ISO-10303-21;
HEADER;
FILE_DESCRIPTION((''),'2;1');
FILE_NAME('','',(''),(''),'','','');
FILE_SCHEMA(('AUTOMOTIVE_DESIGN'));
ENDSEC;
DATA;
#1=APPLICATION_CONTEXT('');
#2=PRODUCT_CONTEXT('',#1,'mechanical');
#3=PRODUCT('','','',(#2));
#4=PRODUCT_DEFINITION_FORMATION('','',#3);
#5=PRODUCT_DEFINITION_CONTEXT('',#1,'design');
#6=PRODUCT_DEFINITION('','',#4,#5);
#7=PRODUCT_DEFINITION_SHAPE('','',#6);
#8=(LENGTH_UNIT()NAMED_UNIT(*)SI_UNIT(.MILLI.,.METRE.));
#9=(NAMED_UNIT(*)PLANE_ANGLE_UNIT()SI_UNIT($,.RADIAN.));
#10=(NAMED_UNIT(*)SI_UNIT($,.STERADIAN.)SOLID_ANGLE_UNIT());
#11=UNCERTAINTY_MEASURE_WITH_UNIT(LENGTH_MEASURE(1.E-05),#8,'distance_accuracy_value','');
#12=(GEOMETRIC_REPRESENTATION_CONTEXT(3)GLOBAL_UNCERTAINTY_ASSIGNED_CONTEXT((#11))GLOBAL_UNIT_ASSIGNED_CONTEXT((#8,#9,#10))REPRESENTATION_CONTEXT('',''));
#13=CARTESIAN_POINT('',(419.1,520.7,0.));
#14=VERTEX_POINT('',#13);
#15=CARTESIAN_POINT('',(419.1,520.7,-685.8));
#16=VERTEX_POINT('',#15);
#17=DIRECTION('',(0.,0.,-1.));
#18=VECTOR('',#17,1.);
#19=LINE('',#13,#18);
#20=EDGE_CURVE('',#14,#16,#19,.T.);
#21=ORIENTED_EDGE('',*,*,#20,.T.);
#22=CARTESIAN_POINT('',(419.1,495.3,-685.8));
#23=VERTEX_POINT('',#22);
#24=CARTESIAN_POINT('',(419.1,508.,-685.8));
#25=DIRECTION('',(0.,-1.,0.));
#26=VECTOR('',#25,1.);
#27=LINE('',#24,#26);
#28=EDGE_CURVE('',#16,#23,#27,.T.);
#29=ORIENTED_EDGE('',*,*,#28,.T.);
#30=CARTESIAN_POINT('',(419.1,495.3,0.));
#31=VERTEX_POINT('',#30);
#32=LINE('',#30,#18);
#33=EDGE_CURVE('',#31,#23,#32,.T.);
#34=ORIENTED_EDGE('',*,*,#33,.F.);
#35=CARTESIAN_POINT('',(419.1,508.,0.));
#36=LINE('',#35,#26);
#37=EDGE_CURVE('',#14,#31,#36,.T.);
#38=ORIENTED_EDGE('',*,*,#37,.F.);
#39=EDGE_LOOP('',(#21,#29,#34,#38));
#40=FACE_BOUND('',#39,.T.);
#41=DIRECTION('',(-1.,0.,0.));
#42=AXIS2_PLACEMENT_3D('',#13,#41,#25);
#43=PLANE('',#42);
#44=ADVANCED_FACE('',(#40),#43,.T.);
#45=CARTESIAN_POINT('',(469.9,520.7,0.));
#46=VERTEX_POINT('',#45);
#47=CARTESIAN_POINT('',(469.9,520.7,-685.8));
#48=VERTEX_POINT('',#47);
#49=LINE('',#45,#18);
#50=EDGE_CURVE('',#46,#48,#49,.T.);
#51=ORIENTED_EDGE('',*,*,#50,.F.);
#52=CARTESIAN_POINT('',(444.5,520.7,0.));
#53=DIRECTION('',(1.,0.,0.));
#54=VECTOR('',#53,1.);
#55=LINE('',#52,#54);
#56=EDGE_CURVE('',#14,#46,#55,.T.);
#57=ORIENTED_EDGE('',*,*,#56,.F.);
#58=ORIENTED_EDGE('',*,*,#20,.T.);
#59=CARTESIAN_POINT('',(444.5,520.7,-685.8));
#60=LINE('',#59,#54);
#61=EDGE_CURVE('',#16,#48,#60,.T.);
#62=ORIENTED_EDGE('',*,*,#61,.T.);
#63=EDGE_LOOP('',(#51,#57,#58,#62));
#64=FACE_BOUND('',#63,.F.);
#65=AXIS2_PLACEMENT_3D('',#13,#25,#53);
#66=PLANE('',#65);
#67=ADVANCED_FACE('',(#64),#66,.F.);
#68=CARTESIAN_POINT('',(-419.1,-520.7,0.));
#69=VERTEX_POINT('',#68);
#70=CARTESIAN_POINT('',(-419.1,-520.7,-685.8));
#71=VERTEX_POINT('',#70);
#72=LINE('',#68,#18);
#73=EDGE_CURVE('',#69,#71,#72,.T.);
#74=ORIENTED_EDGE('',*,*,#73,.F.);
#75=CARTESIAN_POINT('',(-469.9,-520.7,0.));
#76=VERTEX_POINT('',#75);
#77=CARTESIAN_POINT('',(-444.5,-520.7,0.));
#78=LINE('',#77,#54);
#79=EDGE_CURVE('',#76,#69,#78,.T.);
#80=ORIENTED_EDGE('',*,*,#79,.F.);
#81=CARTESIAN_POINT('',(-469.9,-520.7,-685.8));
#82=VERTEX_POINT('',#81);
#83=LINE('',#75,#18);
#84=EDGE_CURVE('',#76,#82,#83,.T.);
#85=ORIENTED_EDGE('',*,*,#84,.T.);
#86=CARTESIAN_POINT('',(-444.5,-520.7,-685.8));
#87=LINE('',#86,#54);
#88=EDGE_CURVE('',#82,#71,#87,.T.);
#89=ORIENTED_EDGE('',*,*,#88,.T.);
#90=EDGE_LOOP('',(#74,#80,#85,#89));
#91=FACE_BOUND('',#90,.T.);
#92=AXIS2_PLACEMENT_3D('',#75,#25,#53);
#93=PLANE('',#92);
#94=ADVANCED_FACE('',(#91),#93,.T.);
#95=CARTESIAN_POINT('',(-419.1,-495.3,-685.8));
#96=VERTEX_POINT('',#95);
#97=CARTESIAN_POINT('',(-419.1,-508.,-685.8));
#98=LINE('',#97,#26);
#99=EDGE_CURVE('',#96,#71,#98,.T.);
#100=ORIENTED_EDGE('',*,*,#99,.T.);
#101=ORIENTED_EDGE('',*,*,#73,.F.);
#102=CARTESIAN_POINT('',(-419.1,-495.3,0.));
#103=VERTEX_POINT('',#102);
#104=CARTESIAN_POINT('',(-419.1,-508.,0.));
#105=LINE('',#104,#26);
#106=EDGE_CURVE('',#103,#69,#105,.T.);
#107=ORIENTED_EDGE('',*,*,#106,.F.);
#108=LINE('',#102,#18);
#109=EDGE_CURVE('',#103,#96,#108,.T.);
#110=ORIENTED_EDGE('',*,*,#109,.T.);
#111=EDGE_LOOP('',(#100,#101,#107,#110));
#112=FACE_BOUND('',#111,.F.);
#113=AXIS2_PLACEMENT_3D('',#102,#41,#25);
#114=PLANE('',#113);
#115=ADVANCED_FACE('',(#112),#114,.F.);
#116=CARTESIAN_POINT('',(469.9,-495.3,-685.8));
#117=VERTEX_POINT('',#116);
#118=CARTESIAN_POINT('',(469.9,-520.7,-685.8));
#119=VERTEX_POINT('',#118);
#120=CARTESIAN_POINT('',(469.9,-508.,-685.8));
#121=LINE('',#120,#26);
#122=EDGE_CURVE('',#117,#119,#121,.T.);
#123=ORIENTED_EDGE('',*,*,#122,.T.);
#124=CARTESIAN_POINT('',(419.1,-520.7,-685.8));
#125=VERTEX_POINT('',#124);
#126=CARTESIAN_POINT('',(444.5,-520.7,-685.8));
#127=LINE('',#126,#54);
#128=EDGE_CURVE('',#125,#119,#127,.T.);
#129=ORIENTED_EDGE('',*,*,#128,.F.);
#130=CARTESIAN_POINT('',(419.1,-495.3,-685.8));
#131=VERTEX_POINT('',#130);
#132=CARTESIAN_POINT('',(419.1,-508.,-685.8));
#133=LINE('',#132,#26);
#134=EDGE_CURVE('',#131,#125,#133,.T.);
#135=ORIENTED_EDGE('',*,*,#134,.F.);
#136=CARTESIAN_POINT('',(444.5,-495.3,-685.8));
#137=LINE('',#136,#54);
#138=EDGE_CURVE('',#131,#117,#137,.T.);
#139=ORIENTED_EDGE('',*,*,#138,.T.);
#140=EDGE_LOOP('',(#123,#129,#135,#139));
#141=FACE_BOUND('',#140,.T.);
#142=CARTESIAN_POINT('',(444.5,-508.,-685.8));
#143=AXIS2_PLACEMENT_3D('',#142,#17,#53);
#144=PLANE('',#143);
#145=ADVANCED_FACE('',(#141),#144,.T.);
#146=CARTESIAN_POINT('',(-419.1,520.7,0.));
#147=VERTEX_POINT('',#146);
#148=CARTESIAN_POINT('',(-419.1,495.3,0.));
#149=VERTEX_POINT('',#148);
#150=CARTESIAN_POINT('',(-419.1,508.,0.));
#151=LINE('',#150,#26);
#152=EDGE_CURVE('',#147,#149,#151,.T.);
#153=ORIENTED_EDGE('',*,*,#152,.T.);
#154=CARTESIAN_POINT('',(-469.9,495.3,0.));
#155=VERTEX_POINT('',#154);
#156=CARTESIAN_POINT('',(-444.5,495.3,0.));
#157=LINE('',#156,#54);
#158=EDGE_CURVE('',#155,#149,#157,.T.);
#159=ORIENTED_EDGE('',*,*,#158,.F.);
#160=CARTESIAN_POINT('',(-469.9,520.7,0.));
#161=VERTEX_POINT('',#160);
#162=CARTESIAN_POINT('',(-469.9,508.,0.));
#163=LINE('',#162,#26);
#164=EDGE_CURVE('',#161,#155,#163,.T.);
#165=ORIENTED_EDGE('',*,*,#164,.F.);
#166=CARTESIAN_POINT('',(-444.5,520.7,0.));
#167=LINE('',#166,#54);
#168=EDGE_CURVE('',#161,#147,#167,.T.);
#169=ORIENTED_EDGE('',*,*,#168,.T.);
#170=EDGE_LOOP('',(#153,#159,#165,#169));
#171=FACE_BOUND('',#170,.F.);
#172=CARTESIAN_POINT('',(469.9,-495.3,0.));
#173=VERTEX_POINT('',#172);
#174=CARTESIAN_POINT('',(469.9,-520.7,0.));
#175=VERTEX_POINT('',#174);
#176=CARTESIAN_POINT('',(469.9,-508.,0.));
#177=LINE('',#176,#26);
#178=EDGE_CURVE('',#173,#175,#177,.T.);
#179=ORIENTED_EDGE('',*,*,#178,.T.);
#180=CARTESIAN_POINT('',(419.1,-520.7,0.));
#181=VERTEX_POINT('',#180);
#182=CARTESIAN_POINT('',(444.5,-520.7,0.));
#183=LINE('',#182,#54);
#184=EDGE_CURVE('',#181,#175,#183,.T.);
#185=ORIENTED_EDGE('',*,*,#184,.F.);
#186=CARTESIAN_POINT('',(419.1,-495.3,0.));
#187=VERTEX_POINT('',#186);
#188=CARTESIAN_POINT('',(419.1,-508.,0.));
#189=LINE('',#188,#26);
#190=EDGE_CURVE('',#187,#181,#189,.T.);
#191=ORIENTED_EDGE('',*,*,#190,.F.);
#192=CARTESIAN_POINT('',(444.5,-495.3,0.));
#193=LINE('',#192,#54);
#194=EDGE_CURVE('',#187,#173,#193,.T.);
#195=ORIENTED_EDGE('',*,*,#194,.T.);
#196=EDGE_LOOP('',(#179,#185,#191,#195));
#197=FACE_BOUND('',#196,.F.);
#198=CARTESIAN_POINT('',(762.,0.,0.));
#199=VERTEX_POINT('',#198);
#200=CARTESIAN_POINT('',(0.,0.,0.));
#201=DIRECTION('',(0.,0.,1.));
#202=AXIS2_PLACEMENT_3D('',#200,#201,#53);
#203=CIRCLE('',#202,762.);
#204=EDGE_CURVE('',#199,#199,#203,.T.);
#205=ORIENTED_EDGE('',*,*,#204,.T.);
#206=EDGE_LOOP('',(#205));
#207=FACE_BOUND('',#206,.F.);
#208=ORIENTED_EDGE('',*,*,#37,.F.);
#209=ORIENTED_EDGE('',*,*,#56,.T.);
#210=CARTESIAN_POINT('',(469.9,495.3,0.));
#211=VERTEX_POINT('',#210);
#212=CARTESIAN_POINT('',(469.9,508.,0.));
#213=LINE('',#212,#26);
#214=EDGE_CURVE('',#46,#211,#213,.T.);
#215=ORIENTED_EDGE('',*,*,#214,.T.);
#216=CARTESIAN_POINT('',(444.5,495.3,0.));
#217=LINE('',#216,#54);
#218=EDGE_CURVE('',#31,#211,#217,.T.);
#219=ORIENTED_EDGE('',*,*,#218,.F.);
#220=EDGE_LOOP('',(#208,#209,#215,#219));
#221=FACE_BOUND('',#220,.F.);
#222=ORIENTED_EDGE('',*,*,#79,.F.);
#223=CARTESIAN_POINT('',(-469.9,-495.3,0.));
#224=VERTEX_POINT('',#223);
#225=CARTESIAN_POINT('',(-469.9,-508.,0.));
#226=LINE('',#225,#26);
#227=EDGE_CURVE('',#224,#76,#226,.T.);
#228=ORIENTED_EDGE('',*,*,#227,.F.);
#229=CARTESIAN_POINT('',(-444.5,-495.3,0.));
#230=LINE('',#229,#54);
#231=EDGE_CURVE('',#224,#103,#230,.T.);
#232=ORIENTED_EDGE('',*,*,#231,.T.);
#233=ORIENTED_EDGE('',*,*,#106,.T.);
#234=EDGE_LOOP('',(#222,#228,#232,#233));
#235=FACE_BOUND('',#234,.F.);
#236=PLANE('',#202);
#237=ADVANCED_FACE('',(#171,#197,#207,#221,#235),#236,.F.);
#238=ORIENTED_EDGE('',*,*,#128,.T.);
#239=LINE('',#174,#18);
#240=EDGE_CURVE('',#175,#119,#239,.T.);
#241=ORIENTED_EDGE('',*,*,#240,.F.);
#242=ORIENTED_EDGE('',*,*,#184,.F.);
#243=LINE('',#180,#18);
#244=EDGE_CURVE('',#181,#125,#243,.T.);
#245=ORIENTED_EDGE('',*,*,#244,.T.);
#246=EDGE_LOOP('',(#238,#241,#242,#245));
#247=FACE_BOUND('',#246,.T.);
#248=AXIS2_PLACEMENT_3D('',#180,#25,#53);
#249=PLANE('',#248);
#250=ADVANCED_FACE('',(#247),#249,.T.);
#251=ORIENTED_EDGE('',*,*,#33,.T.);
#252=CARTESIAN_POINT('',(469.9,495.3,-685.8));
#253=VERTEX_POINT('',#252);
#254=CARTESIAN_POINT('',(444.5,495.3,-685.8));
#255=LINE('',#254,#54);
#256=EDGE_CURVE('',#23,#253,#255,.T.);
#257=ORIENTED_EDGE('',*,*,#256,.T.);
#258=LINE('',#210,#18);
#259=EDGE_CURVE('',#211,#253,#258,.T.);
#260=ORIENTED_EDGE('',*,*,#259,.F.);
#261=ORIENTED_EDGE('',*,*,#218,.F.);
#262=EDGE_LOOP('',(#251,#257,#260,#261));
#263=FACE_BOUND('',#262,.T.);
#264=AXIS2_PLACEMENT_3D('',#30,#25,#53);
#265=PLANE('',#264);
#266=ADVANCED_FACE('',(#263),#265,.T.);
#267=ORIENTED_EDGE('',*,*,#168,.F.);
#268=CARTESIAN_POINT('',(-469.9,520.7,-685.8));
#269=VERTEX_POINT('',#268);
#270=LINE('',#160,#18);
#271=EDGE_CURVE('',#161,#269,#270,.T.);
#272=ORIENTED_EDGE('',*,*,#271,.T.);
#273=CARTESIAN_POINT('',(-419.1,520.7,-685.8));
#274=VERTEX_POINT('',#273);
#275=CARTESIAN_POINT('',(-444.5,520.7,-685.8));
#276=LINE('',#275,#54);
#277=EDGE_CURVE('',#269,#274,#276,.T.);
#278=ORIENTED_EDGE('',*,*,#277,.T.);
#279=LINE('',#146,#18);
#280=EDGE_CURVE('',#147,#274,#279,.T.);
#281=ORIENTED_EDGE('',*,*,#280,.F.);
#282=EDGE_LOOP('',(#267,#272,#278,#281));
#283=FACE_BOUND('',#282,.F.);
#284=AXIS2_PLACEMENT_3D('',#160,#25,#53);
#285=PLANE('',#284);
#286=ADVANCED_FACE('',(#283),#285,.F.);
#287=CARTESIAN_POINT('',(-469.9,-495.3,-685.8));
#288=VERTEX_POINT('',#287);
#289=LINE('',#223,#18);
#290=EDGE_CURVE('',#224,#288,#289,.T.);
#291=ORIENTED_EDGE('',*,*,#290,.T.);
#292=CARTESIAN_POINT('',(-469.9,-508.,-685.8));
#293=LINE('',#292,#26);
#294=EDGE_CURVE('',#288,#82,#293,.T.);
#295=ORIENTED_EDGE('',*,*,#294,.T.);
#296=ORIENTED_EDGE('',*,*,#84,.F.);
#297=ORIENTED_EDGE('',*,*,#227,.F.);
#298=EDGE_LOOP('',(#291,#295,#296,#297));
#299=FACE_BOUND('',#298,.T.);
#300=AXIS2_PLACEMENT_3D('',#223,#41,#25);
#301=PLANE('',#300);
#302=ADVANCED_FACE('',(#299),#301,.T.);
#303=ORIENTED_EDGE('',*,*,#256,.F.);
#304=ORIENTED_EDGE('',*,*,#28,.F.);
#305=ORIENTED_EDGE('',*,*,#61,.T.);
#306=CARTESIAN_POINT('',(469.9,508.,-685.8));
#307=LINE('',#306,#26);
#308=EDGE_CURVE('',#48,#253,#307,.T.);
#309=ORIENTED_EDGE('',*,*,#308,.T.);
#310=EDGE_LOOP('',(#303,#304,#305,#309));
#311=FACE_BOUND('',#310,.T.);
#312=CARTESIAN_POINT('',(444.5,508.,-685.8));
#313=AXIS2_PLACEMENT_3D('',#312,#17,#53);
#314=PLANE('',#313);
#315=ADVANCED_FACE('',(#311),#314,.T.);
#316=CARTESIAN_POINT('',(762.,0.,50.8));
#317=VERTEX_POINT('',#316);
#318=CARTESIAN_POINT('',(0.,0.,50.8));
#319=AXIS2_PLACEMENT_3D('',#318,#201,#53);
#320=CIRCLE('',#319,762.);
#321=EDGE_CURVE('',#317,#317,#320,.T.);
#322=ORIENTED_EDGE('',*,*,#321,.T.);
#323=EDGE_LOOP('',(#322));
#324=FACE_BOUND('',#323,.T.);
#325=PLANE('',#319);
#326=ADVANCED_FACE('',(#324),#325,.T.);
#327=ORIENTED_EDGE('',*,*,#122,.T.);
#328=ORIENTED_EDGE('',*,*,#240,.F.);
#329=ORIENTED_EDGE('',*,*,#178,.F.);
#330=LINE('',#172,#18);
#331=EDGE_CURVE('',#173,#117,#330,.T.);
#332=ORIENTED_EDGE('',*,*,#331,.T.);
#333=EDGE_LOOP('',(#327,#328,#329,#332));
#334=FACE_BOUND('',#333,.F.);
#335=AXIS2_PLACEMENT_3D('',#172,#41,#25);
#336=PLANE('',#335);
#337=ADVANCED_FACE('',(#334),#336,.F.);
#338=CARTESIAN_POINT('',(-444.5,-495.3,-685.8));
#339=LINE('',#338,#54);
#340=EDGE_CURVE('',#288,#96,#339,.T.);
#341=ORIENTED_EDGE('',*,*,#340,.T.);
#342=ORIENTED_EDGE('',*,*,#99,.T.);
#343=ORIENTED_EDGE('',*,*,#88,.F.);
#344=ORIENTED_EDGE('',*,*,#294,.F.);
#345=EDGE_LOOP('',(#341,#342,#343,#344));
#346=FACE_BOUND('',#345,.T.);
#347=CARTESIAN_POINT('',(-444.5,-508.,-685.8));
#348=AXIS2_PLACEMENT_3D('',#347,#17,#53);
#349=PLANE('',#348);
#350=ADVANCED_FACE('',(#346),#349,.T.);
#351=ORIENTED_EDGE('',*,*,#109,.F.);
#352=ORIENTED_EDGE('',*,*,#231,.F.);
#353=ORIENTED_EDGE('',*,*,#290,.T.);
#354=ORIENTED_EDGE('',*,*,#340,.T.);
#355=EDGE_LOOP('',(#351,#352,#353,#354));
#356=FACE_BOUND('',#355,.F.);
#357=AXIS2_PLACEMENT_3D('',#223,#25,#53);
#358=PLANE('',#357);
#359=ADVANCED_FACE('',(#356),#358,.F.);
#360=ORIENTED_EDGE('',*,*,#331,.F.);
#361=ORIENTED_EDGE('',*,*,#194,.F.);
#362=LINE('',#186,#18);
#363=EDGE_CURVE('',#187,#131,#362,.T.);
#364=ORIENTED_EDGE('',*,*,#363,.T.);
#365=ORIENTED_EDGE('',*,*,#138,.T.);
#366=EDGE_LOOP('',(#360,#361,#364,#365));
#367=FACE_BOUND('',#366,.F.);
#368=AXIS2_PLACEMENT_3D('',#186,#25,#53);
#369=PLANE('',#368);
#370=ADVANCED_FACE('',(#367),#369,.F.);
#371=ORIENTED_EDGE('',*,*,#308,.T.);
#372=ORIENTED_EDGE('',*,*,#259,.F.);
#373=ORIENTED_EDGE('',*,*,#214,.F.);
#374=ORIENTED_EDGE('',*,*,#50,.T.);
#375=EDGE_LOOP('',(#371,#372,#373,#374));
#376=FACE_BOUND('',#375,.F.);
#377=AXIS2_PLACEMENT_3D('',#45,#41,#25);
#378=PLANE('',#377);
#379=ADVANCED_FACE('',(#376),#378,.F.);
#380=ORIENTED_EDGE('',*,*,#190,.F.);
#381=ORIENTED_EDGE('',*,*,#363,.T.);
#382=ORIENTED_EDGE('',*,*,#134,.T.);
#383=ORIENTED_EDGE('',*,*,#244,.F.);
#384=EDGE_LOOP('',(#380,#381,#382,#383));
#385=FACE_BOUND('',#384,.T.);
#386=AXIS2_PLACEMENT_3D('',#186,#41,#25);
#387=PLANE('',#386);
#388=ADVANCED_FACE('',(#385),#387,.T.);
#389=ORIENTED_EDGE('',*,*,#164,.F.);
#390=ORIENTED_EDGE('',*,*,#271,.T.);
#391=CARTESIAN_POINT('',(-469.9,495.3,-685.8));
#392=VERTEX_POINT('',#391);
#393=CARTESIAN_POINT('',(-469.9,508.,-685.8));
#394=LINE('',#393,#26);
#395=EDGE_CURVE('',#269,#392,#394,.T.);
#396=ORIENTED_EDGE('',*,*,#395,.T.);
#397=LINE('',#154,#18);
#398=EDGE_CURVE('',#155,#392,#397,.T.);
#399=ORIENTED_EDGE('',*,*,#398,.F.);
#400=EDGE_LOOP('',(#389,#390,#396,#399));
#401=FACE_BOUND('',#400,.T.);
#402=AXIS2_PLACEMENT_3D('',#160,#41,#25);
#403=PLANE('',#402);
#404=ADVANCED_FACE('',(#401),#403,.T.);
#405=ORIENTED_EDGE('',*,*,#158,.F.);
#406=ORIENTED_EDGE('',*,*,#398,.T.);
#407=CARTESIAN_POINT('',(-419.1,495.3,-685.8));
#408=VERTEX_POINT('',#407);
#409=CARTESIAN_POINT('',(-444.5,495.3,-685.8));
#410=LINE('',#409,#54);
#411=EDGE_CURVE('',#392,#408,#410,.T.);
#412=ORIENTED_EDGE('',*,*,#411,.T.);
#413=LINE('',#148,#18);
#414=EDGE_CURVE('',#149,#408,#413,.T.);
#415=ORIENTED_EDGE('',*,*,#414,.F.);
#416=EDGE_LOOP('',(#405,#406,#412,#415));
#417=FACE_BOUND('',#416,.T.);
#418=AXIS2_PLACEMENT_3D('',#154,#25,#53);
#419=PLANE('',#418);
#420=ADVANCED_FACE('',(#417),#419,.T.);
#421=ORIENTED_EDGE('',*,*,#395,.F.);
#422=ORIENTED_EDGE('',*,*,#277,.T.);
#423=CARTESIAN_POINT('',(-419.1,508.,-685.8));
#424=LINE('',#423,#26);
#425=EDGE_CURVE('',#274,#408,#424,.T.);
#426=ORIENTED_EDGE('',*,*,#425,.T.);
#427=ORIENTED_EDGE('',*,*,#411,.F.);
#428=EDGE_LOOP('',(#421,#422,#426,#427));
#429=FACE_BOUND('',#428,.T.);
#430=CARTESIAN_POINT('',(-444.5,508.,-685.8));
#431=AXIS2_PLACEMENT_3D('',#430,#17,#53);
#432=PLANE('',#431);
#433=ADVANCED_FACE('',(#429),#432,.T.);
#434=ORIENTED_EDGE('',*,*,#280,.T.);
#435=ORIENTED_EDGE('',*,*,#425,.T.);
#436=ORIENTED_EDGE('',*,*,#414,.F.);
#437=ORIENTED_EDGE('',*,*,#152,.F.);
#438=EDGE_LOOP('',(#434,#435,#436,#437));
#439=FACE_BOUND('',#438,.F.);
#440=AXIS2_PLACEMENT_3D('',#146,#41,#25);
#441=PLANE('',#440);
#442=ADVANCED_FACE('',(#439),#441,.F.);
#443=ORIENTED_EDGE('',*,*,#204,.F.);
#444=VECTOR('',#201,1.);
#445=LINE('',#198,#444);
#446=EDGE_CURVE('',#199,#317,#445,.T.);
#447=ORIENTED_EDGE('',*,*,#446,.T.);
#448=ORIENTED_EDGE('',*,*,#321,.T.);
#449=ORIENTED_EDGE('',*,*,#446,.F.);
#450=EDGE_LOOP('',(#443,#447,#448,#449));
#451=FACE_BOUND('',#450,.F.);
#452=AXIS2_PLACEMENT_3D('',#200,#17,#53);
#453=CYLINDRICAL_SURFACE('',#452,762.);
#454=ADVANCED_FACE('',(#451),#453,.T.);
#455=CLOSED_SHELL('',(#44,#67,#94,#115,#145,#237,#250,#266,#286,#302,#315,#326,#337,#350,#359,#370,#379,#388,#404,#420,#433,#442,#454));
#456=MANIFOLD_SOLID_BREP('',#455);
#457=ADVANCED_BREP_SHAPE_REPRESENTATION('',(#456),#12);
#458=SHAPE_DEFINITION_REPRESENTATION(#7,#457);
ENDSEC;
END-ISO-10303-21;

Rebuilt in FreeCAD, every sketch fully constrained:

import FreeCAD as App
import Part
import Sketcher

V = App.Vector
Q = App.Units.Quantity

doc = App.newDocument("Part")
params = doc.addObject("Spreadsheet::Sheet", "Params")
for row, (alias, value) in enumerate([
    ("sketch1_diameter", "60 in"),
    ("pad1_length", "2 in"),
    ("sketch2_width", "2 in"),
    ("sketch2_height", "1 in"),
    ("pad2_length", "27 in"),
], start=1):
    params.set(f"A{row}", alias)
    params.set(f"B{row}", "=" + value)
    params.setAlias(f"B{row}", alias)

body = doc.addObject("PartDesign::Body", "Body")

# Sketch on XY plane
sketch1 = doc.addObject("Sketcher::SketchObject", "Sketch")
body.addObject(sketch1)
sketch1.AttachmentSupport = (doc.XY_Plane, [""])
sketch1.MapMode = "FlatFace"
sketch1.addGeometry(Part.Circle(V(0, 0, 0), V(0, 0, 1), 762), False)
sketch1.addConstraint([
    Sketcher.Constraint("Coincident", 0, 3, -1, 1),
    Sketcher.Constraint("Diameter", 0, Q("60 in")),
])
sketch1.setExpression("Constraints[1]", "Params.sketch1_diameter")
pad1 = doc.addObject("PartDesign::Pad", "Pad")
body.addObject(pad1)
pad1.Profile = sketch1
pad1.setExpression("Length", "Params.pad1_length")

# Sketch on XY plane
sketch2 = doc.addObject("Sketcher::SketchObject", "Sketch001")
body.addObject(sketch2)
sketch2.AttachmentSupport = (doc.XY_Plane, [""])
sketch2.MapMode = "FlatFace"
sketch2.addGeometry([
    Part.LineSegment(V(-469.9, -520.7, 0), V(-469.9, -495.3, 0)),  # 0
    Part.LineSegment(V(-469.9, -495.3, 0), V(-419.1, -495.3, 0)),  # 1
    Part.LineSegment(V(-419.1, -495.3, 0), V(-419.1, -520.7, 0)),  # 2
    Part.LineSegment(V(-419.1, -520.7, 0), V(-469.9, -520.7, 0)),  # 3
    Part.LineSegment(V(419.1, -520.7, 0), V(419.1, -495.3, 0)),  # 4
    Part.LineSegment(V(419.1, -495.3, 0), V(469.9, -495.3, 0)),  # 5
    Part.LineSegment(V(469.9, -495.3, 0), V(469.9, -520.7, 0)),  # 6
    Part.LineSegment(V(469.9, -520.7, 0), V(419.1, -520.7, 0)),  # 7
    Part.LineSegment(V(-469.9, 495.3, 0), V(-469.9, 520.7, 0)),  # 8
    Part.LineSegment(V(-469.9, 520.7, 0), V(-419.1, 520.7, 0)),  # 9
    Part.LineSegment(V(-419.1, 520.7, 0), V(-419.1, 495.3, 0)),  # 10
    Part.LineSegment(V(-419.1, 495.3, 0), V(-469.9, 495.3, 0)),  # 11
    Part.LineSegment(V(419.1, 495.3, 0), V(419.1, 520.7, 0)),  # 12
    Part.LineSegment(V(419.1, 520.7, 0), V(469.9, 520.7, 0)),  # 13
    Part.LineSegment(V(469.9, 520.7, 0), V(469.9, 495.3, 0)),  # 14
    Part.LineSegment(V(469.9, 495.3, 0), V(419.1, 495.3, 0)),  # 15
], False)
sketch2.addConstraint([
    Sketcher.Constraint("Coincident", 0, 2, 1, 1),
    Sketcher.Constraint("Coincident", 1, 2, 2, 1),
    Sketcher.Constraint("Coincident", 2, 2, 3, 1),
    Sketcher.Constraint("Coincident", 3, 2, 0, 1),
    Sketcher.Constraint("Coincident", 4, 2, 5, 1),
    Sketcher.Constraint("Coincident", 5, 2, 6, 1),
    Sketcher.Constraint("Coincident", 6, 2, 7, 1),
    Sketcher.Constraint("Coincident", 7, 2, 4, 1),
    Sketcher.Constraint("Coincident", 8, 2, 9, 1),
    Sketcher.Constraint("Coincident", 9, 2, 10, 1),
    Sketcher.Constraint("Coincident", 10, 2, 11, 1),
    Sketcher.Constraint("Coincident", 11, 2, 8, 1),
    Sketcher.Constraint("Coincident", 12, 2, 13, 1),
    Sketcher.Constraint("Coincident", 13, 2, 14, 1),
    Sketcher.Constraint("Coincident", 14, 2, 15, 1),
    Sketcher.Constraint("Coincident", 15, 2, 12, 1),
    Sketcher.Constraint("Vertical", 0),
    Sketcher.Constraint("Horizontal", 1),
    Sketcher.Constraint("Vertical", 2),
    Sketcher.Constraint("Horizontal", 3),
    Sketcher.Constraint("Vertical", 4),
    Sketcher.Constraint("Horizontal", 5),
    Sketcher.Constraint("Vertical", 6),
    Sketcher.Constraint("Horizontal", 7),
    Sketcher.Constraint("Vertical", 8),
    Sketcher.Constraint("Horizontal", 9),
    Sketcher.Constraint("Vertical", 10),
    Sketcher.Constraint("Horizontal", 11),
    Sketcher.Constraint("Vertical", 12),
    Sketcher.Constraint("Horizontal", 13),
    Sketcher.Constraint("Vertical", 14),
    Sketcher.Constraint("Horizontal", 15),
    Sketcher.Constraint("Symmetric", 6, 2, 8, 2, -1, 1),
    Sketcher.Constraint("Symmetric", 4, 2, 10, 2, -1, 1),
    Sketcher.Constraint("Symmetric", 2, 2, 12, 2, -1, 1),
    Sketcher.Constraint("Symmetric", 0, 2, 14, 2, -1, 1),
    Sketcher.Constraint("Symmetric", 1, 2, 4, 2, -2),
    Sketcher.Constraint("Symmetric", 3, 2, 6, 2, -2),
    Sketcher.Constraint("DistanceX", 1, 1, 1, 2, Q("2 in")),
    Sketcher.Constraint("DistanceY", 0, 1, 0, 2, Q("1 in")),
    Sketcher.Constraint("DistanceX", 1, 2, 4, 2, Q("33 in")),
    Sketcher.Constraint("DistanceY", 0, 2, 8, 2, Q("40 in")),
])
sketch2.setExpression("Constraints[38]", "Params.sketch2_width")
sketch2.setExpression("Constraints[39]", "Params.sketch2_height")
pad2 = doc.addObject("PartDesign::Pad", "Pad001")
body.addObject(pad2)
pad2.Profile = sketch2
pad2.setExpression("Length", "Params.pad2_length")
pad2.Reversed = True

doc.recompute()
